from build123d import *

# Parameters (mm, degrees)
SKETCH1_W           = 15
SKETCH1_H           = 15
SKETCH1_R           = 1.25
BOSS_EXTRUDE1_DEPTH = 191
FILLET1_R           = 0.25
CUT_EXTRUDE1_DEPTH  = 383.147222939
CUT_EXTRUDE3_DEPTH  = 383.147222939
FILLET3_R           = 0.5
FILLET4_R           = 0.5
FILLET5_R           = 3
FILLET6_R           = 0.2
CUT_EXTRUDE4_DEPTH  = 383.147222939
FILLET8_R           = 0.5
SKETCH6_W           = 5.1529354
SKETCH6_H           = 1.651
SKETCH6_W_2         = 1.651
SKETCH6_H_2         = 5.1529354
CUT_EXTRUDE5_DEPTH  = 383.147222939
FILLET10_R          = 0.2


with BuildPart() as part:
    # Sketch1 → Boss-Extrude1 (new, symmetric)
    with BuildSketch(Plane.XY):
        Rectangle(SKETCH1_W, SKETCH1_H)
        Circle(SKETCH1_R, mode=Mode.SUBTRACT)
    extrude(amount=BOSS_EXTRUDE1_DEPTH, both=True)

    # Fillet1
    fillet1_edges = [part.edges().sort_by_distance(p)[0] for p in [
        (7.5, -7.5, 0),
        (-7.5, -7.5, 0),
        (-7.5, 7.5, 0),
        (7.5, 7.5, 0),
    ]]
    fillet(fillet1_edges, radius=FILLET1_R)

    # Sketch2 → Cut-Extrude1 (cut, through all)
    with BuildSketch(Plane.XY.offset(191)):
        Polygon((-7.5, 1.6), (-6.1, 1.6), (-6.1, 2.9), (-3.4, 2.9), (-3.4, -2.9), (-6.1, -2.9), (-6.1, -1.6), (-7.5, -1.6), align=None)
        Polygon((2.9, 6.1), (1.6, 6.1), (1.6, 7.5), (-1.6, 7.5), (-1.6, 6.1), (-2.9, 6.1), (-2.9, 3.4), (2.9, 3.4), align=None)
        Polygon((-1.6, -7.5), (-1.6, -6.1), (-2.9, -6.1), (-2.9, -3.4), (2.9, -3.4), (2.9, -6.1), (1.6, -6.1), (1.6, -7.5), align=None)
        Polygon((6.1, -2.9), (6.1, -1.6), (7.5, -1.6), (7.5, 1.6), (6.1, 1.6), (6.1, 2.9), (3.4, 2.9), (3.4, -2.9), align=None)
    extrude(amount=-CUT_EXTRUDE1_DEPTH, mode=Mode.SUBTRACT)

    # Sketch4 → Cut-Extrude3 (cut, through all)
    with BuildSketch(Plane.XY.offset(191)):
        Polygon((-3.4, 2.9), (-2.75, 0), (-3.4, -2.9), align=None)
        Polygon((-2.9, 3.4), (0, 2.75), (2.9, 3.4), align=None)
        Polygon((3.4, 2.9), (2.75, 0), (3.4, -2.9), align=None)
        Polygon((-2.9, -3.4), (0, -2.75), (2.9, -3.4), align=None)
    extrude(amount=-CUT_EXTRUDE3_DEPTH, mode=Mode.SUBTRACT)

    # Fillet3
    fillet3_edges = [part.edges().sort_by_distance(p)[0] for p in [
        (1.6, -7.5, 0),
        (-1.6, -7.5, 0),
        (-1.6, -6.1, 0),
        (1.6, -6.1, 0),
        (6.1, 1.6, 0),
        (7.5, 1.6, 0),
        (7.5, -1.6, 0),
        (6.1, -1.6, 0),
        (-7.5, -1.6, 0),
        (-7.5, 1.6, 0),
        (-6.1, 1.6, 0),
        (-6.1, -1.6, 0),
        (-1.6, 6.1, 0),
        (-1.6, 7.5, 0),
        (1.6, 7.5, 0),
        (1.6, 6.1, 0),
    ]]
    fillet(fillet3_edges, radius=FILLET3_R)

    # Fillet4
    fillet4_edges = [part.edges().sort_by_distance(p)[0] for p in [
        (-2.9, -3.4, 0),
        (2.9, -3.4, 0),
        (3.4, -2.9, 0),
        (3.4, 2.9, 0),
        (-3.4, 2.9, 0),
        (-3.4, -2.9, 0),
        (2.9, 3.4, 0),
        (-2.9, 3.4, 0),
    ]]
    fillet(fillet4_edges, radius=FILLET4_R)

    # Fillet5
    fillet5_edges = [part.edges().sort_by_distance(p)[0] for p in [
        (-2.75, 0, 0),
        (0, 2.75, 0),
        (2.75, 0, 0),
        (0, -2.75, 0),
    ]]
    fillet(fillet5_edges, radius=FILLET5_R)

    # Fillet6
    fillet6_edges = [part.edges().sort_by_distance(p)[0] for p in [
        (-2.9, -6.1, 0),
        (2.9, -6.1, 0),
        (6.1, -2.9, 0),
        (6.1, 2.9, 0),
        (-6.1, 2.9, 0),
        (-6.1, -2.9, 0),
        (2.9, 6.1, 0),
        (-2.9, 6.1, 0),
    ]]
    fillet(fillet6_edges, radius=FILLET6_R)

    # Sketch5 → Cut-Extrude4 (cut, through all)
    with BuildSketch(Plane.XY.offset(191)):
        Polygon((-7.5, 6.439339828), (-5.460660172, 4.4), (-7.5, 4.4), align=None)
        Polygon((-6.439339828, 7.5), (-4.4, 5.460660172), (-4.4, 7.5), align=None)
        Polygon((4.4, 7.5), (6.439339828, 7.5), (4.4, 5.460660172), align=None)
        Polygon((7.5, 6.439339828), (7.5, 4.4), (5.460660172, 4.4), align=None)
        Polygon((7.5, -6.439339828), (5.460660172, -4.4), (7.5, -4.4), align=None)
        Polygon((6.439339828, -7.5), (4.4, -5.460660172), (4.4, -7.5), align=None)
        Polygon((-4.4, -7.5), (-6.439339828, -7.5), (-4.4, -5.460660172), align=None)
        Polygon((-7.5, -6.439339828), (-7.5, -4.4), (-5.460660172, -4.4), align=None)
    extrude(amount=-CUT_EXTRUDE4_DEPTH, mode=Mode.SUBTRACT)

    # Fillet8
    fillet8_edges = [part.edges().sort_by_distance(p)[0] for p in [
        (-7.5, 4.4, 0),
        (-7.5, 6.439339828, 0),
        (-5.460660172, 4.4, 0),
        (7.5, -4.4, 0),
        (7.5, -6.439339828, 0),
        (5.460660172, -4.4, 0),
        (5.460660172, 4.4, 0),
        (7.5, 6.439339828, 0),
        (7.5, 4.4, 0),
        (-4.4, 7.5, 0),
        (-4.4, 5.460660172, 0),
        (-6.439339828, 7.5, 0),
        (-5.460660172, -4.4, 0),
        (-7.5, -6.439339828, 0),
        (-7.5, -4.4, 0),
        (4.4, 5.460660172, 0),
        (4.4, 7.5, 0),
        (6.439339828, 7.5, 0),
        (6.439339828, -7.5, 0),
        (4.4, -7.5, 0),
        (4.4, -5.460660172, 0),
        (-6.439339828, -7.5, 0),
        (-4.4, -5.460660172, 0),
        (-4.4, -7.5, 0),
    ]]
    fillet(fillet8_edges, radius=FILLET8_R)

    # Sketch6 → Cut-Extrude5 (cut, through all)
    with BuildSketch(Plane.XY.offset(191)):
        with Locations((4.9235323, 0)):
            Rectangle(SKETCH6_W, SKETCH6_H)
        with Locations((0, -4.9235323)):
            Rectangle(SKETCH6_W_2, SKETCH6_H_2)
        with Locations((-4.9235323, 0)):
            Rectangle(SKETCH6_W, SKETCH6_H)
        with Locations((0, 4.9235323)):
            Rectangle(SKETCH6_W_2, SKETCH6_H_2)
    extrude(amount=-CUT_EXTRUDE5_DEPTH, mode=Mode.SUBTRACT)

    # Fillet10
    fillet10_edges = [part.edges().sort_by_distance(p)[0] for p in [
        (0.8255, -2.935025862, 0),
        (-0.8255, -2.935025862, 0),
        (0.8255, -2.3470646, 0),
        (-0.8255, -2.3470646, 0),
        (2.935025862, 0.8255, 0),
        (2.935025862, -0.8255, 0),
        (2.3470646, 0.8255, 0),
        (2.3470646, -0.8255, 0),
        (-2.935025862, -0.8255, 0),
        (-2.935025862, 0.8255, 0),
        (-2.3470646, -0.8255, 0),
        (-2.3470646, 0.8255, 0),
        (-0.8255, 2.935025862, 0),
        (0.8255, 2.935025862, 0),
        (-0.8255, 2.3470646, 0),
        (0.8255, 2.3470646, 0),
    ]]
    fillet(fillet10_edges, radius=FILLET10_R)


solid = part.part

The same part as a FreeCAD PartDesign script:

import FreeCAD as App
import Part
import Sketcher


def edges_at(feature, points):
    """Names of the edges that pass closest to the given points."""
    edges = feature.Shape.Edges
    near = lambda p: min(range(len(edges)), key=lambda i: edges[i].distToShape(Part.Vertex(*p))[0])
    return sorted({f"Edge{near(p) + 1}" for p in points})

doc = App.newDocument("Part")
body = doc.addObject("PartDesign::Body", "Body")

# Sketch on XY plane
sketch1 = body.newObject("Sketcher::SketchObject", "Sketch")
sketch1.AttachmentSupport = (doc.getObject("XY_Plane"), [""])
sketch1.MapMode = "FlatFace"
sketch1.addGeometry([
    Part.LineSegment(App.Vector(-7.5, 7.5, 0), App.Vector(-7.5, -7.5, 0)),  # 0
    Part.LineSegment(App.Vector(-7.5, -7.5, 0), App.Vector(7.5, -7.5, 0)),  # 1
    Part.LineSegment(App.Vector(7.5, -7.5, 0), App.Vector(7.5, 7.5, 0)),  # 2
    Part.LineSegment(App.Vector(7.5, 7.5, 0), App.Vector(-7.5, 7.5, 0)),  # 3
    Part.Circle(App.Vector(0, 0, 0), App.Vector(0, 0, 1), 1.2),  # 4
], False)
sketch1.addConstraint([
    Sketcher.Constraint("Coincident", 0, 2, 1, 1),
    Sketcher.Constraint("Coincident", 1, 2, 2, 1),
    Sketcher.Constraint("Coincident", 2, 2, 3, 1),
    Sketcher.Constraint("Coincident", 3, 2, 0, 1),
    Sketcher.Constraint("Vertical", 0),
    Sketcher.Constraint("Horizontal", 1),
    Sketcher.Constraint("Vertical", 2),
    Sketcher.Constraint("Horizontal", 3),
    Sketcher.Constraint("Coincident", 4, 3, -1, 1),
    Sketcher.Constraint("Symmetric", 0, 2, 2, 2, -1, 1),
    Sketcher.Constraint("Equal", 3, 0),
    Sketcher.Constraint("Diameter", 4, 2.5),
    Sketcher.Constraint("DistanceX", 1, 1, 1, 2, 15.0),
])
pad1 = body.newObject("PartDesign::Pad", "Pad")
pad1.Profile = sketch1
pad1.Length = 382
pad1.Midplane = True
doc.recompute()

fillet = body.newObject("PartDesign::Fillet", "Fillet")
fillet.Base = (pad1, edges_at(pad1, [
    (7.5, -7.5, 0),
    (-7.5, -7.5, 0),
    (-7.5, 7.5, 0),
    (7.5, 7.5, 0),
]))
fillet.Radius = 0.25

# Sketch on XY plane
sketch2 = body.newObject("Sketcher::SketchObject", "Sketch001")
sketch2.AttachmentSupport = (doc.getObject("XY_Plane"), [""])
sketch2.MapMode = "FlatFace"
sketch2.AttachmentOffset = App.Placement(App.Vector(0, 0, 191), App.Rotation())
sketch2.addGeometry([
    Part.LineSegment(App.Vector(-6.1, 1.6, 0), App.Vector(-7.5, 1.6, 0)),  # 0
    Part.LineSegment(App.Vector(-7.5, 1.6, 0), App.Vector(-7.5, -1.6, 0)),  # 1
    Part.LineSegment(App.Vector(-7.5, -1.6, 0), App.Vector(-6.1, -1.6, 0)),  # 2
    Part.LineSegment(App.Vector(-6.1, -1.6, 0), App.Vector(-6.1, -2.9, 0)),  # 3
    Part.LineSegment(App.Vector(-6.1, -2.9, 0), App.Vector(-3.4, -2.9, 0)),  # 4
    Part.LineSegment(App.Vector(-3.4, -2.9, 0), App.Vector(-3.4, 2.9, 0)),  # 5
    Part.LineSegment(App.Vector(-3.4, 2.9, 0), App.Vector(-6.1, 2.9, 0)),  # 6
    Part.LineSegment(App.Vector(-6.1, 2.9, 0), App.Vector(-6.1, 1.6, 0)),  # 7
    Part.LineSegment(App.Vector(2.9, 6.1, 0), App.Vector(1.6, 6.1, 0)),  # 8
    Part.LineSegment(App.Vector(1.6, 6.1, 0), App.Vector(1.6, 7.5, 0)),  # 9
    Part.LineSegment(App.Vector(1.6, 7.5, 0), App.Vector(-1.6, 7.5, 0)),  # 10
    Part.LineSegment(App.Vector(-1.6, 7.5, 0), App.Vector(-1.6, 6.1, 0)),  # 11
    Part.LineSegment(App.Vector(-1.6, 6.1, 0), App.Vector(-2.9, 6.1, 0)),  # 12
    Part.LineSegment(App.Vector(-2.9, 6.1, 0), App.Vector(-2.9, 3.4, 0)),  # 13
    Part.LineSegment(App.Vector(-2.9, 3.4, 0), App.Vector(2.9, 3.4, 0)),  # 14
    Part.LineSegment(App.Vector(2.9, 3.4, 0), App.Vector(2.9, 6.1, 0)),  # 15
    Part.LineSegment(App.Vector(-1.6, -6.1, 0), App.Vector(-1.6, -7.5, 0)),  # 16
    Part.LineSegment(App.Vector(-1.6, -7.5, 0), App.Vector(1.6, -7.5, 0)),  # 17
    Part.LineSegment(App.Vector(1.6, -7.5, 0), App.Vector(1.6, -6.1, 0)),  # 18
    Part.LineSegment(App.Vector(1.6, -6.1, 0), App.Vector(2.9, -6.1, 0)),  # 19
    Part.LineSegment(App.Vector(2.9, -6.1, 0), App.Vector(2.9, -3.4, 0)),  # 20
    Part.LineSegment(App.Vector(2.9, -3.4, 0), App.Vector(-2.9, -3.4, 0)),  # 21
    Part.LineSegment(App.Vector(-2.9, -3.4, 0), App.Vector(-2.9, -6.1, 0)),  # 22
    Part.LineSegment(App.Vector(-2.9, -6.1, 0), App.Vector(-1.6, -6.1, 0)),  # 23
    Part.LineSegment(App.Vector(6.1, -2.9, 0), App.Vector(6.1, -1.6, 0)),  # 24
    Part.LineSegment(App.Vector(6.1, -1.6, 0), App.Vector(7.5, -1.6, 0)),  # 25
    Part.LineSegment(App.Vector(7.5, -1.6, 0), App.Vector(7.5, 1.6, 0)),  # 26
    Part.LineSegment(App.Vector(7.5, 1.6, 0), App.Vector(6.1, 1.6, 0)),  # 27
    Part.LineSegment(App.Vector(6.1, 1.6, 0), App.Vector(6.1, 2.9, 0)),  # 28
    Part.LineSegment(App.Vector(6.1, 2.9, 0), App.Vector(3.4, 2.9, 0)),  # 29
    Part.LineSegment(App.Vector(3.4, 2.9, 0), App.Vector(3.4, -2.9, 0)),  # 30
    Part.LineSegment(App.Vector(3.4, -2.9, 0), App.Vector(6.1, -2.9, 0)),  # 31
], False)
sketch2.addConstraint([
    Sketcher.Constraint("Coincident", 0, 2, 1, 1),
    Sketcher.Constraint("Coincident", 1, 2, 2, 1),
    Sketcher.Constraint("Coincident", 2, 2, 3, 1),
    Sketcher.Constraint("Coincident", 3, 2, 4, 1),
    Sketcher.Constraint("Coincident", 4, 2, 5, 1),
    Sketcher.Constraint("Coincident", 5, 2, 6, 1),
    Sketcher.Constraint("Coincident", 6, 2, 7, 1),
    Sketcher.Constraint("Coincident", 7, 2, 0, 1),
    Sketcher.Constraint("Coincident", 8, 2, 9, 1),
    Sketcher.Constraint("Coincident", 9, 2, 10, 1),
    Sketcher.Constraint("Coincident", 10, 2, 11, 1),
    Sketcher.Constraint("Coincident", 11, 2, 12, 1),
    Sketcher.Constraint("Coincident", 12, 2, 13, 1),
    Sketcher.Constraint("Coincident", 13, 2, 14, 1),
    Sketcher.Constraint("Coincident", 14, 2, 15, 1),
    Sketcher.Constraint("Coincident", 15, 2, 8, 1),
    Sketcher.Constraint("Coincident", 16, 2, 17, 1),
    Sketcher.Constraint("Coincident", 17, 2, 18, 1),
    Sketcher.Constraint("Coincident", 18, 2, 19, 1),
    Sketcher.Constraint("Coincident", 19, 2, 20, 1),
    Sketcher.Constraint("Coincident", 20, 2, 21, 1),
    Sketcher.Constraint("Coincident", 21, 2, 22, 1),
    Sketcher.Constraint("Coincident", 22, 2, 23, 1),
    Sketcher.Constraint("Coincident", 23, 2, 16, 1),
    Sketcher.Constraint("Coincident", 24, 2, 25, 1),
    Sketcher.Constraint("Coincident", 25, 2, 26, 1),
    Sketcher.Constraint("Coincident", 26, 2, 27, 1),
    Sketcher.Constraint("Coincident", 27, 2, 28, 1),
    Sketcher.Constraint("Coincident", 28, 2, 29, 1),
    Sketcher.Constraint("Coincident", 29, 2, 30, 1),
    Sketcher.Constraint("Coincident", 30, 2, 31, 1),
    Sketcher.Constraint("Coincident", 31, 2, 24, 1),
    Sketcher.Constraint("Horizontal", 0),
    Sketcher.Constraint("Vertical", 1),
    Sketcher.Constraint("Horizontal", 2),
    Sketcher.Constraint("Vertical", 3),
    Sketcher.Constraint("Horizontal", 4),
    Sketcher.Constraint("Vertical", 5),
    Sketcher.Constraint("Horizontal", 6),
    Sketcher.Constraint("Vertical", 7),
    Sketcher.Constraint("Horizontal", 8),
    Sketcher.Constraint("Vertical", 9),
    Sketcher.Constraint("Horizontal", 10),
    Sketcher.Constraint("Vertical", 11),
    Sketcher.Constraint("Horizontal", 12),
    Sketcher.Constraint("Vertical", 13),
    Sketcher.Constraint("Horizontal", 14),
    Sketcher.Constraint("Vertical", 15),
    Sketcher.Constraint("Vertical", 16),
    Sketcher.Constraint("Horizontal", 17),
    Sketcher.Constraint("Vertical", 18),
    Sketcher.Constraint("Horizontal", 19),
    Sketcher.Constraint("Vertical", 20),
    Sketcher.Constraint("Horizontal", 21),
    Sketcher.Constraint("Vertical", 22),
    Sketcher.Constraint("Horizontal", 23),
    Sketcher.Constraint("Vertical", 24),
    Sketcher.Constraint("Horizontal", 25),
    Sketcher.Constraint("Vertical", 26),
    Sketcher.Constraint("Horizontal", 27),
    Sketcher.Constraint("Vertical", 28),
    Sketcher.Constraint("Horizontal", 29),
    Sketcher.Constraint("Vertical", 30),
    Sketcher.Constraint("Horizontal", 31),
    Sketcher.Constraint("Symmetric", 9, 2, 16, 2, -1, 1),
    Sketcher.Constraint("Symmetric", 11, 2, 18, 2, -1, 1),
    Sketcher.Constraint("Symmetric", 13, 2, 20, 2, -1, 1),
    Sketcher.Constraint("Symmetric", 15, 2, 22, 2, -1, 1),
    Sketcher.Constraint("Symmetric", 7, 2, 24, 2, -1, 1),
    Sketcher.Constraint("Symmetric", 1, 2, 26, 2, -1, 1),
    Sketcher.Constraint("Symmetric", 3, 2, 28, 2, -1, 1),
    Sketcher.Constraint("Symmetric", 5, 2, 30, 2, -1, 1),
    Sketcher.Constraint("Symmetric", 8, 2, 11, 2, -2),
    Sketcher.Constraint("Symmetric", 2, 2, 24, 2, -2),
    Sketcher.Constraint("Horizontal", 6, 2, 28, 2),
    Sketcher.Constraint("Vertical", 15, 2, 19, 2),
    Sketcher.Constraint("Equal", 17, 1),
    Sketcher.Constraint("Equal", 23, 3),
    Sketcher.Constraint("Equal", 27, 9),
    Sketcher.Constraint("Equal", 31, 13),
    Sketcher.Constraint("DistanceX", 0, 2, 0, 1, 1.4),
    Sketcher.Constraint("DistanceX", 4, 1, 4, 2, 2.7),
    Sketcher.Constraint("DistanceX", 8, 2, 8, 1, 1.3),
    Sketcher.Constraint("DistanceX", 10, 2, 10, 1, 3.2),
    Sketcher.Constraint("DistanceX", 5, 2, 8, 2, 5.0),
    Sketcher.Constraint("DistanceY", 4, 2, 8, 2, 9.0),
])
pocket1 = body.newObject("PartDesign::Pocket", "Pocket")
pocket1.Profile = sketch2
pocket1.Type = "ThroughAll"

# Sketch on XY plane
sketch3 = body.newObject("Sketcher::SketchObject", "Sketch002")
sketch3.AttachmentSupport = (doc.getObject("XY_Plane"), [""])
sketch3.MapMode = "FlatFace"
sketch3.AttachmentOffset = App.Placement(App.Vector(0, 0, 191), App.Rotation())
sketch3.addGeometry([
    Part.LineSegment(App.Vector(-2.8, 0, 0), App.Vector(-3.4, 2.9, 0)),  # 0
    Part.LineSegment(App.Vector(-3.4, 2.9, 0), App.Vector(-3.4, -2.9, 0)),  # 1
    Part.LineSegment(App.Vector(-3.4, -2.9, 0), App.Vector(-2.8, 0, 0)),  # 2
    Part.LineSegment(App.Vector(-2.9, 3.4, 0), App.Vector(0, 2.8, 0)),  # 3
    Part.LineSegment(App.Vector(0, 2.8, 0), App.Vector(2.9, 3.4, 0)),  # 4
    Part.LineSegment(App.Vector(2.9, 3.4, 0), App.Vector(-2.9, 3.4, 0)),  # 5
    Part.LineSegment(App.Vector(3.4, 2.9, 0), App.Vector(2.8, 0, 0)),  # 6
    Part.LineSegment(App.Vector(2.8, 0, 0), App.Vector(3.4, -2.9, 0)),  # 7
    Part.LineSegment(App.Vector(3.4, -2.9, 0), App.Vector(3.4, 2.9, 0)),  # 8
    Part.LineSegment(App.Vector(0, -2.8, 0), App.Vector(-2.9, -3.4, 0)),  # 9
    Part.LineSegment(App.Vector(-2.9, -3.4, 0), App.Vector(2.9, -3.4, 0)),  # 10
    Part.LineSegment(App.Vector(2.9, -3.4, 0), App.Vector(0, -2.8, 0)),  # 11
], False)
sketch3.addConstraint([
    Sketcher.Constraint("Coincident", 0, 2, 1, 1),
    Sketcher.Constraint("Coincident", 1, 2, 2, 1),
    Sketcher.Constraint("Coincident", 2, 2, 0, 1),
    Sketcher.Constraint("Coincident", 3, 2, 4, 1),
    Sketcher.Constraint("Coincident", 4, 2, 5, 1),
    Sketcher.Constraint("Coincident", 5, 2, 3, 1),
    Sketcher.Constraint("Coincident", 6, 2, 7, 1),
    Sketcher.Constraint("Coincident", 7, 2, 8, 1),
    Sketcher.Constraint("Coincident", 8, 2, 6, 1),
    Sketcher.Constraint("Coincident", 9, 2, 10, 1),
    Sketcher.Constraint("Coincident", 10, 2, 11, 1),
    Sketcher.Constraint("Coincident", 11, 2, 9, 1),
    Sketcher.Constraint("Vertical", 1),
    Sketcher.Constraint("Horizontal", 5),
    Sketcher.Constraint("Vertical", 8),
    Sketcher.Constraint("Horizontal", 10),
    Sketcher.Constraint("Symmetric", 2, 2, 6, 2, -1, 1),
    Sketcher.Constraint("Symmetric", 0, 2, 7, 2, -1, 1),
    Sketcher.Constraint("Symmetric", 4, 2, 9, 2, -1, 1),
    Sketcher.Constraint("Symmetric", 3, 2, 11, 2, -1, 1),
    Sketcher.Constraint("PointOnObject", 2, 2, -1),
    Sketcher.Constraint("PointOnObject", 3, 2, -2),
    Sketcher.Constraint("Perpendicular", 2, 3),
    Sketcher.Constraint("Perpendicular", 0, 4),
    Sketcher.Constraint("Perpendicular", 3, 6),
    Sketcher.Constraint("Perpendicular", 6, 11),
    Sketcher.Constraint("Horizontal", 1, 2, 7, 2),
    Sketcher.Constraint("Equal", 10, 1),
    Sketcher.Constraint("DistanceX", 5, 2, 5, 1, 5.8),
    Sketcher.Constraint("DistanceX", 0, 2, -1, 1, 3.4),
    Sketcher.Constraint("DistanceY", -1, 1, 4, 2, 3.4),
    Sketcher.Constraint("DistanceX", 2, 2, 6, 2, 5.5),
])
pocket2 = body.newObject("PartDesign::Pocket", "Pocket001")
pocket2.Profile = sketch3
pocket2.Type = "ThroughAll"
doc.recompute()

fillet2 = body.newObject("PartDesign::Fillet", "Fillet001")
fillet2.Base = (pocket2, edges_at(pocket2, [
    (1.6, -7.5, 0),
    (-1.6, -7.5, 0),
    (-1.6, -6.1, 0),
    (1.6, -6.1, 0),
    (6.1, 1.6, 0),
    (7.5, 1.6, 0),
    (7.5, -1.6, 0),
    (6.1, -1.6, 0),
    (-7.5, -1.6, 0),
    (-7.5, 1.6, 0),
    (-6.1, 1.6, 0),
    (-6.1, -1.6, 0),
    (-1.6, 6.1, 0),
    (-1.6, 7.5, 0),
    (1.6, 7.5, 0),
    (1.6, 6.1, 0),
]))
fillet2.Radius = 0.5
doc.recompute()

fillet3 = body.newObject("PartDesign::Fillet", "Fillet002")
fillet3.Base = (fillet2, edges_at(fillet2, [
    (-2.9, -3.4, 0),
    (2.9, -3.4, 0),
    (3.4, -2.9, 0),
    (3.4, 2.9, 0),
    (-3.4, 2.9, 0),
    (-3.4, -2.9, 0),
    (2.9, 3.4, 0),
    (-2.9, 3.4, 0),
]))
fillet3.Radius = 0.5
doc.recompute()

fillet4 = body.newObject("PartDesign::Fillet", "Fillet003")
fillet4.Base = (fillet3, edges_at(fillet3, [
    (-2.75, 0, 0),
    (0, 2.75, 0),
    (2.75, 0, 0),
    (0, -2.75, 0),
]))
fillet4.Radius = 3
doc.recompute()

fillet5 = body.newObject("PartDesign::Fillet", "Fillet004")
fillet5.Base = (fillet4, edges_at(fillet4, [
    (-2.9, -6.1, 0),
    (2.9, -6.1, 0),
    (6.1, -2.9, 0),
    (6.1, 2.9, 0),
    (-6.1, 2.9, 0),
    (-6.1, -2.9, 0),
    (2.9, 6.1, 0),
    (-2.9, 6.1, 0),
]))
fillet5.Radius = 0.2

# Sketch on XY plane
sketch4 = body.newObject("Sketcher::SketchObject", "Sketch003")
sketch4.AttachmentSupport = (doc.getObject("XY_Plane"), [""])
sketch4.MapMode = "FlatFace"
sketch4.AttachmentOffset = App.Placement(App.Vector(0, 0, 191), App.Rotation())
sketch4.addGeometry([
    Part.LineSegment(App.Vector(-5.5, 4.4, 0), App.Vector(-7.5, 6.4, 0)),  # 0
    Part.LineSegment(App.Vector(-7.5, 6.4, 0), App.Vector(-7.5, 4.4, 0)),  # 1
    Part.LineSegment(App.Vector(-7.5, 4.4, 0), App.Vector(-5.5, 4.4, 0)),  # 2
    Part.LineSegment(App.Vector(-6.4, 7.5, 0), App.Vector(-4.4, 5.5, 0)),  # 3
    Part.LineSegment(App.Vector(-4.4, 5.5, 0), App.Vector(-4.4, 7.5, 0)),  # 4
    Part.LineSegment(App.Vector(-4.4, 7.5, 0), App.Vector(-6.4, 7.5, 0)),  # 5
    Part.LineSegment(App.Vector(6.4, 7.5, 0), App.Vector(4.4, 7.5, 0)),  # 6
    Part.LineSegment(App.Vector(4.4, 7.5, 0), App.Vector(4.4, 5.5, 0)),  # 7
    Part.LineSegment(App.Vector(4.4, 5.5, 0), App.Vector(6.4, 7.5, 0)),  # 8
    Part.LineSegment(App.Vector(7.5, 4.4, 0), App.Vector(7.5, 6.4, 0)),  # 9
    Part.LineSegment(App.Vector(7.5, 6.4, 0), App.Vector(5.5, 4.4, 0)),  # 10
    Part.LineSegment(App.Vector(5.5, 4.4, 0), App.Vector(7.5, 4.4, 0)),  # 11
    Part.LineSegment(App.Vector(5.5, -4.4, 0), App.Vector(7.5, -6.4, 0)),  # 12
    Part.LineSegment(App.Vector(7.5, -6.4, 0), App.Vector(7.5, -4.4, 0)),  # 13
    Part.LineSegment(App.Vector(7.5, -4.4, 0), App.Vector(5.5, -4.4, 0)),  # 14
    Part.LineSegment(App.Vector(6.4, -7.5, 0), App.Vector(4.4, -5.5, 0)),  # 15
    Part.LineSegment(App.Vector(4.4, -5.5, 0), App.Vector(4.4, -7.5, 0)),  # 16
    Part.LineSegment(App.Vector(4.4, -7.5, 0), App.Vector(6.4, -7.5, 0)),  # 17
    Part.LineSegment(App.Vector(-6.4, -7.5, 0), App.Vector(-4.4, -7.5, 0)),  # 18
    Part.LineSegment(App.Vector(-4.4, -7.5, 0), App.Vector(-4.4, -5.5, 0)),  # 19
    Part.LineSegment(App.Vector(-4.4, -5.5, 0), App.Vector(-6.4, -7.5, 0)),  # 20
    Part.LineSegment(App.Vector(-7.5, -4.4, 0), App.Vector(-7.5, -6.4, 0)),  # 21
    Part.LineSegment(App.Vector(-7.5, -6.4, 0), App.Vector(-5.5, -4.4, 0)),  # 22
    Part.LineSegment(App.Vector(-5.5, -4.4, 0), App.Vector(-7.5, -4.4, 0)),  # 23
], False)
sketch4.addConstraint([
    Sketcher.Constraint("Coincident", 0, 2, 1, 1),
    Sketcher.Constraint("Coincident", 1, 2, 2, 1),
    Sketcher.Constraint("Coincident", 2, 2, 0, 1),
    Sketcher.Constraint("Coincident", 3, 2, 4, 1),
    Sketcher.Constraint("Coincident", 4, 2, 5, 1),
    Sketcher.Constraint("Coincident", 5, 2, 3, 1),
    Sketcher.Constraint("Coincident", 6, 2, 7, 1),
    Sketcher.Constraint("Coincident", 7, 2, 8, 1),
    Sketcher.Constraint("Coincident", 8, 2, 6, 1),
    Sketcher.Constraint("Coincident", 9, 2, 10, 1),
    Sketcher.Constraint("Coincident", 10, 2, 11, 1),
    Sketcher.Constraint("Coincident", 11, 2, 9, 1),
    Sketcher.Constraint("Coincident", 12, 2, 13, 1),
    Sketcher.Constraint("Coincident", 13, 2, 14, 1),
    Sketcher.Constraint("Coincident", 14, 2, 12, 1),
    Sketcher.Constraint("Coincident", 15, 2, 16, 1),
    Sketcher.Constraint("Coincident", 16, 2, 17, 1),
    Sketcher.Constraint("Coincident", 17, 2, 15, 1),
    Sketcher.Constraint("Coincident", 18, 2, 19, 1),
    Sketcher.Constraint("Coincident", 19, 2, 20, 1),
    Sketcher.Constraint("Coincident", 20, 2, 18, 1),
    Sketcher.Constraint("Coincident", 21, 2, 22, 1),
    Sketcher.Constraint("Coincident", 22, 2, 23, 1),
    Sketcher.Constraint("Coincident", 23, 2, 21, 1),
    Sketcher.Constraint("Vertical", 1),
    Sketcher.Constraint("Horizontal", 2),
    Sketcher.Constraint("Vertical", 4),
    Sketcher.Constraint("Horizontal", 5),
    Sketcher.Constraint("Horizontal", 6),
    Sketcher.Constraint("Vertical", 7),
    Sketcher.Constraint("Vertical", 9),
    Sketcher.Constraint("Horizontal", 11),
    Sketcher.Constraint("Vertical", 13),
    Sketcher.Constraint("Horizontal", 14),
    Sketcher.Constraint("Vertical", 16),
    Sketcher.Constraint("Horizontal", 17),
    Sketcher.Constraint("Horizontal", 18),
    Sketcher.Constraint("Vertical", 19),
    Sketcher.Constraint("Vertical", 21),
    Sketcher.Constraint("Horizontal", 23),
    Sketcher.Constraint("Symmetric", 0, 2, 12, 2, -1, 1),
    Sketcher.Constraint("Symmetric", 2, 2, 14, 2, -1, 1),
    Sketcher.Constraint("Symmetric", 3, 2, 15, 2, -1, 1),
    Sketcher.Constraint("Symmetric", 5, 2, 17, 2, -1, 1),
    Sketcher.Constraint("Symmetric", 6, 2, 18, 2, -1, 1),
    Sketcher.Constraint("Symmetric", 9, 2, 21, 2, -1, 1),
    Sketcher.Constraint("Symmetric", 10, 2, 22, 2, -1, 1),
    Sketcher.Constraint("Symmetric", 4, 2, 6, 2, -2),
    Sketcher.Constraint("Symmetric", 0, 2, 9, 2, -2),
    Sketcher.Constraint("Symmetric", 2, 2, 10, 2, -2),
    Sketcher.Constraint("Parallel", 0, 3),
    Sketcher.Constraint("Perpendicular", 3, 8),
    Sketcher.Constraint("Parallel", 8, 10),
    Sketcher.Constraint("Perpendicular", 15, 20),
    Sketcher.Constraint("Horizontal", 3, 2, 7, 2),
    Sketcher.Constraint("Horizontal", 15, 2, 19, 2),
    Sketcher.Constraint("Equal", 2, 5),
    Sketcher.Constraint("DistanceX", 0, 2, -1, 1, 7.5),
    Sketcher.Constraint("DistanceY", -1, 1, 1, 2, 4.4),
    Sketcher.Constraint("DistanceX", 3, 2, -1, 1, 4.4),
    Sketcher.Constraint("DistanceY", -1, 1, 4, 2, 7.5),
    Sketcher.Constraint("DistanceX", 2, 1, 2, 2, 2.03934),
])
pocket3 = body.newObject("PartDesign::Pocket", "Pocket002")
pocket3.Profile = sketch4
pocket3.Type = "ThroughAll"
doc.recompute()

fillet6 = body.newObject("PartDesign::Fillet", "Fillet005")
fillet6.Base = (pocket3, edges_at(pocket3, [
    (-7.5, 4.4, 0),
    (-7.5, 6.439, 0),
    (-5.461, 4.4, 0),
    (7.5, -4.4, 0),
    (7.5, -6.439, 0),
    (5.461, -4.4, 0),
    (5.461, 4.4, 0),
    (7.5, 6.439, 0),
    (7.5, 4.4, 0),
    (-4.4, 7.5, 0),
    (-4.4, 5.461, 0),
    (-6.439, 7.5, 0),
    (-5.461, -4.4, 0),
    (-7.5, -6.439, 0),
    (-7.5, -4.4, 0),
    (4.4, 5.461, 0),
    (4.4, 7.5, 0),
    (6.439, 7.5, 0),
    (6.439, -7.5, 0),
    (4.4, -7.5, 0),
    (4.4, -5.461, 0),
    (-6.439, -7.5, 0),
    (-4.4, -5.461, 0),
    (-4.4, -7.5, 0),
]))
fillet6.Radius = 0.5

# Sketch on XY plane
sketch5 = body.newObject("Sketcher::SketchObject", "Sketch004")
sketch5.AttachmentSupport = (doc.getObject("XY_Plane"), [""])
sketch5.MapMode = "FlatFace"
sketch5.AttachmentOffset = App.Placement(App.Vector(0, 0, 191), App.Rotation())
sketch5.addGeometry([
    Part.LineSegment(App.Vector(2.3, 0.8, 0), App.Vector(2.3, -0.8, 0)),  # 0
    Part.LineSegment(App.Vector(2.3, -0.8, 0), App.Vector(7.5, -0.8, 0)),  # 1
    Part.LineSegment(App.Vector(7.5, -0.8, 0), App.Vector(7.5, 0.8, 0)),  # 2
    Part.LineSegment(App.Vector(7.5, 0.8, 0), App.Vector(2.3, 0.8, 0)),  # 3
    Part.LineSegment(App.Vector(-0.8, -2.3, 0), App.Vector(-0.8, -7.5, 0)),  # 4
    Part.LineSegment(App.Vector(-0.8, -7.5, 0), App.Vector(0.8, -7.5, 0)),  # 5
    Part.LineSegment(App.Vector(0.8, -7.5, 0), App.Vector(0.8, -2.3, 0)),  # 6
    Part.LineSegment(App.Vector(0.8, -2.3, 0), App.Vector(-0.8, -2.3, 0)),  # 7
    Part.LineSegment(App.Vector(-7.5, 0.8, 0), App.Vector(-7.5, -0.8, 0)),  # 8
    Part.LineSegment(App.Vector(-7.5, -0.8, 0), App.Vector(-2.3, -0.8, 0)),  # 9
    Part.LineSegment(App.Vector(-2.3, -0.8, 0), App.Vector(-2.3, 0.8, 0)),  # 10
    Part.LineSegment(App.Vector(-2.3, 0.8, 0), App.Vector(-7.5, 0.8, 0)),  # 11
    Part.LineSegment(App.Vector(-0.8, 7.5, 0), App.Vector(-0.8, 2.3, 0)),  # 12
    Part.LineSegment(App.Vector(-0.8, 2.3, 0), App.Vector(0.8, 2.3, 0)),  # 13
    Part.LineSegment(App.Vector(0.8, 2.3, 0), App.Vector(0.8, 7.5, 0)),  # 14
    Part.LineSegment(App.Vector(0.8, 7.5, 0), App.Vector(-0.8, 7.5, 0)),  # 15
], False)
sketch5.addConstraint([
    Sketcher.Constraint("Coincident", 0, 2, 1, 1),
    Sketcher.Constraint("Coincident", 1, 2, 2, 1),
    Sketcher.Constraint("Coincident", 2, 2, 3, 1),
    Sketcher.Constraint("Coincident", 3, 2, 0, 1),
    Sketcher.Constraint("Coincident", 4, 2, 5, 1),
    Sketcher.Constraint("Coincident", 5, 2, 6, 1),
    Sketcher.Constraint("Coincident", 6, 2, 7, 1),
    Sketcher.Constraint("Coincident", 7, 2, 4, 1),
    Sketcher.Constraint("Coincident", 8, 2, 9, 1),
    Sketcher.Constraint("Coincident", 9, 2, 10, 1),
    Sketcher.Constraint("Coincident", 10, 2, 11, 1),
    Sketcher.Constraint("Coincident", 11, 2, 8, 1),
    Sketcher.Constraint("Coincident", 12, 2, 13, 1),
    Sketcher.Constraint("Coincident", 13, 2, 14, 1),
    Sketcher.Constraint("Coincident", 14, 2, 15, 1),
    Sketcher.Constraint("Coincident", 15, 2, 12, 1),
    Sketcher.Constraint("Vertical", 0),
    Sketcher.Constraint("Horizontal", 1),
    Sketcher.Constraint("Vertical", 2),
    Sketcher.Constraint("Horizontal", 3),
    Sketcher.Constraint("Vertical", 4),
    Sketcher.Constraint("Horizontal", 5),
    Sketcher.Constraint("Vertical", 6),
    Sketcher.Constraint("Horizontal", 7),
    Sketcher.Constraint("Vertical", 8),
    Sketcher.Constraint("Horizontal", 9),
    Sketcher.Constraint("Vertical", 10),
    Sketcher.Constraint("Horizontal", 11),
    Sketcher.Constraint("Vertical", 12),
    Sketcher.Constraint("Horizontal", 13),
    Sketcher.Constraint("Vertical", 14),
    Sketcher.Constraint("Horizontal", 15),
    Sketcher.Constraint("Symmetric", 2, 2, 8, 2, -1, 1),
    Sketcher.Constraint("Symmetric", 0, 2, 10, 2, -1, 1),
    Sketcher.Constraint("Symmetric", 6, 2, 12, 2, -1, 1),
    Sketcher.Constraint("Symmetric", 4, 2, 14, 2, -1, 1),
    Sketcher.Constraint("Horizontal", 1, 2, 8, 2),
    Sketcher.Constraint("Vertical", 7, 2, 12, 2),
    Sketcher.Constraint("Equal", 15, 0),
    Sketcher.Constraint("Equal", 11, 4),
    Sketcher.Constraint("DistanceX", -1, 1, 1, 2, 7.5),
    Sketcher.Constraint("DistanceY", 4, 2, -1, 1, 7.5),
    Sketcher.Constraint("DistanceX", 5, 1, 5, 2, 1.651),
    Sketcher.Constraint("DistanceX", 1, 1, 1, 2, 5.152935),
])
pocket4 = body.newObject("PartDesign::Pocket", "Pocket003")
pocket4.Profile = sketch5
pocket4.Type = "ThroughAll"
doc.recompute()

fillet7 = body.newObject("PartDesign::Fillet", "Fillet006")
fillet7.Base = (pocket4, edges_at(pocket4, [
    (0.826, -2.935, 0),
    (-0.826, -2.935, 0),
    (0.826, -2.347, 0),
    (-0.826, -2.347, 0),
    (2.935, 0.826, 0),
    (2.935, -0.826, 0),
    (2.347, 0.826, 0),
    (2.347, -0.826, 0),
    (-2.935, -0.826, 0),
    (-2.935, 0.826, 0),
    (-2.347, -0.826, 0),
    (-2.347, 0.826, 0),
    (-0.826, 2.935, 0),
    (0.826, 2.935, 0),
    (-0.826, 2.347, 0),
    (0.826, 2.347, 0),
]))
fillet7.Radius = 0.2

doc.recompute()
